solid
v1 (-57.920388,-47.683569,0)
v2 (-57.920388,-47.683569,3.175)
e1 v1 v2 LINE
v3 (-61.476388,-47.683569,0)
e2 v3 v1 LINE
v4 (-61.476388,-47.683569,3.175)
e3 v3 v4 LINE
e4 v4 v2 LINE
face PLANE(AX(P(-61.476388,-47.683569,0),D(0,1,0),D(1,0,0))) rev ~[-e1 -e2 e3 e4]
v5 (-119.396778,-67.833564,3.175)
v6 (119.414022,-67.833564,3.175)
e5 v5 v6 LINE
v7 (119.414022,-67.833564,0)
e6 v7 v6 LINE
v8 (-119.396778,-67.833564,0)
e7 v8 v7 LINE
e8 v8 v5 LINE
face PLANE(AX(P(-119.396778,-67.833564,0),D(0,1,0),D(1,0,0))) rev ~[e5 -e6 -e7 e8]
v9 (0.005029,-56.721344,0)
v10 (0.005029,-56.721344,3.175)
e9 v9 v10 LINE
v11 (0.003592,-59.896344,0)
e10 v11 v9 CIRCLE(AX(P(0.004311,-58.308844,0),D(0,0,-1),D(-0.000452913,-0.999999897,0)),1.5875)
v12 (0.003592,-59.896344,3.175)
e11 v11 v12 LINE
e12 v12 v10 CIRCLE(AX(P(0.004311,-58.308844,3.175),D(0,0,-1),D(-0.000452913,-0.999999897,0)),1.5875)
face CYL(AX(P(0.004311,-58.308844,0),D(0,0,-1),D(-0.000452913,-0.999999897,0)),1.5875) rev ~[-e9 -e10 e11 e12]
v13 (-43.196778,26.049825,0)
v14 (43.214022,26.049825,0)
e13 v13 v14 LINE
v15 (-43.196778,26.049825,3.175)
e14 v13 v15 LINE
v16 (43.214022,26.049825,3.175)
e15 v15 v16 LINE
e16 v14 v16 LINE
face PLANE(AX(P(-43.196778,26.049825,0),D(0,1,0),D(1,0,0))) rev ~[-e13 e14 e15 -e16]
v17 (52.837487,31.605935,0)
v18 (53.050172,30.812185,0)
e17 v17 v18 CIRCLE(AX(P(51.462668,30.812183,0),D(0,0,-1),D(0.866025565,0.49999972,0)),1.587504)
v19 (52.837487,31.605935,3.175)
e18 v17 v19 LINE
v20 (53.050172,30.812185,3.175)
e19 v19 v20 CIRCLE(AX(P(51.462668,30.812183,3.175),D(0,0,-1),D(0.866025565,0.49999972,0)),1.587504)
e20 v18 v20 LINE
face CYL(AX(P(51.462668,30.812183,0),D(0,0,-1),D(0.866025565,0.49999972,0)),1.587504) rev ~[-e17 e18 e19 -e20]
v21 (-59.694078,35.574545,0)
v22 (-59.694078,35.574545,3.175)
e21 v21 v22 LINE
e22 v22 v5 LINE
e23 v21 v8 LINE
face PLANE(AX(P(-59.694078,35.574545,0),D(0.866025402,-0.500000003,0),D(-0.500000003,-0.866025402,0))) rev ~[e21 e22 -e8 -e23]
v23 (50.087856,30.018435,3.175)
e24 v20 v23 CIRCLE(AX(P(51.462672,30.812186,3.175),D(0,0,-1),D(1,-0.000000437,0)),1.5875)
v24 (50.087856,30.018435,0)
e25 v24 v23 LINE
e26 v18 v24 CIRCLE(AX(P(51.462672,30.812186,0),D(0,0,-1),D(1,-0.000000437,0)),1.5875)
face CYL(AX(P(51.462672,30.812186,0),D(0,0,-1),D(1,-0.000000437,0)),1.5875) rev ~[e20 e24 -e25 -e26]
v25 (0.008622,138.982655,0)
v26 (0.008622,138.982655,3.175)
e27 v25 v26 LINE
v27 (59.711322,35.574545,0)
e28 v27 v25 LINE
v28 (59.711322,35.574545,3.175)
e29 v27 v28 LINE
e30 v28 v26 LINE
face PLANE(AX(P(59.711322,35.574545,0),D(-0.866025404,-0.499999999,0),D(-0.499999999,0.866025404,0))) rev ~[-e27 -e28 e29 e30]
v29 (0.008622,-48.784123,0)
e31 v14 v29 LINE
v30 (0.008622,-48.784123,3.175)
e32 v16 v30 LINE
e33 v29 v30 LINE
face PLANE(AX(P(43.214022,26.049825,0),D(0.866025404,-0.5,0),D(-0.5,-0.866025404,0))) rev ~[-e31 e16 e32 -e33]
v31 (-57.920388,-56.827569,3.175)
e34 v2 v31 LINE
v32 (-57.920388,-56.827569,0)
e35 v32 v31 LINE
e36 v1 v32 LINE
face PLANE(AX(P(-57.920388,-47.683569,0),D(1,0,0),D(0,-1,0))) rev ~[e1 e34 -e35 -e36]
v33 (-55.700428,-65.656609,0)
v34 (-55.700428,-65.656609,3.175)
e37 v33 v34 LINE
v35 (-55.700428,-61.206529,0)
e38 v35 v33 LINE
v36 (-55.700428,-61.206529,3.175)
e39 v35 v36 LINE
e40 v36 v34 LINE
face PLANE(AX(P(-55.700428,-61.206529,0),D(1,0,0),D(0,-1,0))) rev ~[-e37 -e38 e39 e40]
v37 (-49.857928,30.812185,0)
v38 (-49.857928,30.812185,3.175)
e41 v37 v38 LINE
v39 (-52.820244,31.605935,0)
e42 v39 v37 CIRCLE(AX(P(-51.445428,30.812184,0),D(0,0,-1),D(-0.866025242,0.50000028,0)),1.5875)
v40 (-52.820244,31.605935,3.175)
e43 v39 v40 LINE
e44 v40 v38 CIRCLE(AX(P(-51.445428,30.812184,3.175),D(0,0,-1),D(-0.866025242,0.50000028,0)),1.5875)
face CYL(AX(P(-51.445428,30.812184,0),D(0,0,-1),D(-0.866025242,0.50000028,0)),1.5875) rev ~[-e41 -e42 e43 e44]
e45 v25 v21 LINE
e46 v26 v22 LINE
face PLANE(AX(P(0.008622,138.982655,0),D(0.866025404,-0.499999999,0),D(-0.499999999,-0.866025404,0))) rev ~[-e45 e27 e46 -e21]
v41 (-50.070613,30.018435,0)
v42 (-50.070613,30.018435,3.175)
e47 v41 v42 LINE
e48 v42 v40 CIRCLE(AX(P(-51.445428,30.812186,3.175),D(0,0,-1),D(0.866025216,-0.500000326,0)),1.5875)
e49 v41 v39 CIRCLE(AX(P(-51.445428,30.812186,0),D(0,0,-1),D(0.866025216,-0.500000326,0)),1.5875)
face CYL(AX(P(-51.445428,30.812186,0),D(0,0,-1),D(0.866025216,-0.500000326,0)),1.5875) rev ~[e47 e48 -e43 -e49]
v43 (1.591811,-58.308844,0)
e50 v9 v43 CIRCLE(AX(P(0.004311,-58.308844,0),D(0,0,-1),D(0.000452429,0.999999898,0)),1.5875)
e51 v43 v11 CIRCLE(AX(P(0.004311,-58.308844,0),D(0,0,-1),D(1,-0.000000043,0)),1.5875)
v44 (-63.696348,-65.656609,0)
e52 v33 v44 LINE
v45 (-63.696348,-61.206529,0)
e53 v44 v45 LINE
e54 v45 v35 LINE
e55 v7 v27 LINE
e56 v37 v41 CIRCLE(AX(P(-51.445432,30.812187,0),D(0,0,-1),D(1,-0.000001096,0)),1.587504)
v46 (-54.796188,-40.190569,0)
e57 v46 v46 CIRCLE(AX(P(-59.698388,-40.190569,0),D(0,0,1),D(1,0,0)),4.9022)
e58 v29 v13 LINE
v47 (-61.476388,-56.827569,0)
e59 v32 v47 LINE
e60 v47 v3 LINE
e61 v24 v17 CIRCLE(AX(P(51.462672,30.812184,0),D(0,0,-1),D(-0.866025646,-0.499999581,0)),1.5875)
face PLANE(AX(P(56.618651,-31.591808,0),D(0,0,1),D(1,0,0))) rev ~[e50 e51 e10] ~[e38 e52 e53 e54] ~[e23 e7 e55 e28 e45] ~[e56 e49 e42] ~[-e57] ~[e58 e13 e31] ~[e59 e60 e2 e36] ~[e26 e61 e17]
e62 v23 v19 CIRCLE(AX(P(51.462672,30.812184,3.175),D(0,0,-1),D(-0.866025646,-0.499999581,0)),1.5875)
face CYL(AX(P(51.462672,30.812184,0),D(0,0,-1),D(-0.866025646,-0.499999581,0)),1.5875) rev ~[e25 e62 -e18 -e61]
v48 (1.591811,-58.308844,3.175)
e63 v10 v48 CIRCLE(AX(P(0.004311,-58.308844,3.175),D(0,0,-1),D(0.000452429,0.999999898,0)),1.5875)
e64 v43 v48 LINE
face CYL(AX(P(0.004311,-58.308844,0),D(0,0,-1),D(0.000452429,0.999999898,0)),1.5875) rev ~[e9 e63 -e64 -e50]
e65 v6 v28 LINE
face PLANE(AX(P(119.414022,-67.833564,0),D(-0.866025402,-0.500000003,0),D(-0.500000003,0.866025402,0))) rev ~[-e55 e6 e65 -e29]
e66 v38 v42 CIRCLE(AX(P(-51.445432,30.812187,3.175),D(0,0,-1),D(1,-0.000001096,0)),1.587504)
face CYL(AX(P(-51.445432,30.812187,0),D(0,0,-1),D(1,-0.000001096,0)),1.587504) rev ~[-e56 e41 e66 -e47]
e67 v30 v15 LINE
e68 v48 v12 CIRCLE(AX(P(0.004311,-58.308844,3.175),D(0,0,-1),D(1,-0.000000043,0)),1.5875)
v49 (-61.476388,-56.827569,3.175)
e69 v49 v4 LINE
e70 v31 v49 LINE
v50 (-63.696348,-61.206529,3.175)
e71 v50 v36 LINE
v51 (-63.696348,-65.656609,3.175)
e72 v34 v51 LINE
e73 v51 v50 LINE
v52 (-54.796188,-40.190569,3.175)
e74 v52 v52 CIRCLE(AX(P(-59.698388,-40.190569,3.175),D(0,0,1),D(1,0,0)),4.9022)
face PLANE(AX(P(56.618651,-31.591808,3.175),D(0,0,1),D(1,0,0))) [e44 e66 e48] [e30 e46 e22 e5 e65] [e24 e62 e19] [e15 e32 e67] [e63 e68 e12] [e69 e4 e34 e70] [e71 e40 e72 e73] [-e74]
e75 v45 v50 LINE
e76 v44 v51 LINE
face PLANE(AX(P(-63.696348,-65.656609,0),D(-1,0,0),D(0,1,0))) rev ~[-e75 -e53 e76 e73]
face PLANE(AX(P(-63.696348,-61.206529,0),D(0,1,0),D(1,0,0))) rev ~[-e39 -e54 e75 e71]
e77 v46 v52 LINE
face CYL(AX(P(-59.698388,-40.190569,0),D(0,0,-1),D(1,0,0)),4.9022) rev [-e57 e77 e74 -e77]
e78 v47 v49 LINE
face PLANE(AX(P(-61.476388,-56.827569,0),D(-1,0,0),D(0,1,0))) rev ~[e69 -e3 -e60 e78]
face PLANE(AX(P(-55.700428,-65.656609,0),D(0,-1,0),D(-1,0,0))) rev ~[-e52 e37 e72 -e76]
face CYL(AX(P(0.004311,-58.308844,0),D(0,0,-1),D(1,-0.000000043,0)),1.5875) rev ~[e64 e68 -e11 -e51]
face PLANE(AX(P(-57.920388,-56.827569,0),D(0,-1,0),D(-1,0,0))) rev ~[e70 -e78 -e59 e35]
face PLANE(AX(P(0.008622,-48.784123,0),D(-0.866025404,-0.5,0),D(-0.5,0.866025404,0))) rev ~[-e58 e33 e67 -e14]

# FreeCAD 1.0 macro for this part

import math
import FreeCAD as App
import Part
import Sketcher
from FreeCAD import Vector
Q = App.Units.Quantity

doc = App.newDocument("Part")
body = doc.addObject("PartDesign::Body", "Body")

# Sketch on XY plane
sketch1 = body.newObject("Sketcher::SketchObject", "Sketch")
sketch1.AttachmentSupport = (doc.getObject("XY_Plane"), [""])
sketch1.MapMode = "FlatFace"
sketch1.addGeometry([
    Part.LineSegment(Vector(119.414022, -67.833564, 0), Vector(59.711322, 35.574545, 0)),  # 0
    Part.LineSegment(Vector(59.711322, 35.574545, 0), Vector(0.008622, 138.982655, 0)),  # 1
    Part.LineSegment(Vector(0.008622, 138.982655, 0), Vector(-59.694078, 35.574545, 0)),  # 2
    Part.LineSegment(Vector(-59.694078, 35.574545, 0), Vector(-119.396778, -67.833564, 0)),  # 3
    Part.LineSegment(Vector(-119.396778, -67.833564, 0), Vector(119.414022, -67.833564, 0)),  # 4
    Part.LineSegment(Vector(-55.700428, -65.656609, 0), Vector(-63.696348, -65.656609, 0)),  # 5
    Part.LineSegment(Vector(-63.696348, -65.656609, 0), Vector(-63.696348, -61.206529, 0)),  # 6
    Part.LineSegment(Vector(-63.696348, -61.206529, 0), Vector(-55.700428, -61.206529, 0)),  # 7
    Part.LineSegment(Vector(-55.700428, -61.206529, 0), Vector(-55.700428, -65.656609, 0)),  # 8
    Part.LineSegment(Vector(-57.920388, -56.827569, 0), Vector(-61.476388, -56.827569, 0)),  # 9
    Part.LineSegment(Vector(-61.476388, -56.827569, 0), Vector(-61.476388, -47.683569, 0)),  # 10
    Part.LineSegment(Vector(-61.476388, -47.683569, 0), Vector(-57.920388, -47.683569, 0)),  # 11
    Part.LineSegment(Vector(-57.920388, -47.683569, 0), Vector(-57.920388, -56.827569, 0)),  # 12
    Part.Circle(Vector(-59.698388, -40.190569, 0), Vector(0, 0, 1), 4.9022),  # 13
    Part.ArcOfCircle(Part.Circle(Vector(0.004311, -58.308844, 0), Vector(0, 0, 1), 1.5875), math.radians(0.000002), math.radians(89.974078)),  # 14
    Part.ArcOfCircle(Part.Circle(Vector(0.004311, -58.308844, 0), Vector(0, 0, 1), 1.5875), math.radians(-90.025942), math.radians(-0.000002)),  # 15
    Part.ArcOfCircle(Part.Circle(Vector(0.004311, -58.308844, 0), Vector(0, 0, 1), 1.5875), math.radians(89.974086), math.radians(269.97405)),  # 16
    Part.ArcOfCircle(Part.Circle(Vector(-51.445428, 30.812184, 0), Vector(0, 0, 1), 1.5875), math.radians(0.000025), math.radians(149.999981)),  # 17
    Part.ArcOfCircle(Part.Circle(Vector(-51.445432, 30.812187, 0), Vector(0, 0, 1), 1.587504), math.radians(-29.999981), math.radians(-0.000063)),  # 18
    Part.ArcOfCircle(Part.Circle(Vector(-51.445428, 30.812186, 0), Vector(0, 0, 1), 1.5875), math.radians(150.000028), math.radians(329.999978)),  # 19
    Part.LineSegment(Vector(43.214022, 26.049825, 0), Vector(0.008622, -48.784123, 0)),  # 20
    Part.LineSegment(Vector(0.008622, -48.784123, 0), Vector(-43.196778, 26.049825, 0)),  # 21
    Part.LineSegment(Vector(-43.196778, 26.049825, 0), Vector(43.214022, 26.049825, 0)),  # 22
    Part.ArcOfCircle(Part.Circle(Vector(51.462668, 30.812183, 0), Vector(0, 0, 1), 1.587504), math.radians(0.000063), math.radians(29.999981)),  # 23
    Part.ArcOfCircle(Part.Circle(Vector(51.462672, 30.812186, 0), Vector(0, 0, 1), 1.5875), math.radians(-149.999981), math.radians(-0.000025)),  # 24
    Part.ArcOfCircle(Part.Circle(Vector(51.462672, 30.812184, 0), Vector(0, 0, 1), 1.5875), math.radians(30.000022), math.radians(209.999972)),  # 25
], False)
sketch1.addConstraint([
    Sketcher.Constraint("Coincident", 0, 2, 1, 1),
    Sketcher.Constraint("Coincident", 1, 2, 2, 1),
    Sketcher.Constraint("Coincident", 2, 2, 3, 1),
    Sketcher.Constraint("Coincident", 3, 2, 4, 1),
    Sketcher.Constraint("Coincident", 4, 2, 0, 1),
    Sketcher.Constraint("Coincident", 5, 2, 6, 1),
    Sketcher.Constraint("Coincident", 6, 2, 7, 1),
    Sketcher.Constraint("Coincident", 7, 2, 8, 1),
    Sketcher.Constraint("Coincident", 8, 2, 5, 1),
    Sketcher.Constraint("Coincident", 9, 2, 10, 1),
    Sketcher.Constraint("Coincident", 10, 2, 11, 1),
    Sketcher.Constraint("Coincident", 11, 2, 12, 1),
    Sketcher.Constraint("Coincident", 12, 2, 9, 1),
    Sketcher.Constraint("Tangent", 14, 1, 15, 2),
    Sketcher.Constraint("Tangent", 15, 1, 16, 2),
    Sketcher.Constraint("Tangent", 16, 1, 14, 2),
    Sketcher.Constraint("Tangent", 17, 1, 18, 2),
    Sketcher.Constraint("Tangent", 18, 1, 19, 2),
    Sketcher.Constraint("Tangent", 19, 1, 17, 2),
    Sketcher.Constraint("Coincident", 20, 2, 21, 1),
    Sketcher.Constraint("Coincident", 21, 2, 22, 1),
    Sketcher.Constraint("Coincident", 22, 2, 20, 1),
    Sketcher.Constraint("Tangent", 23, 1, 24, 2),
    Sketcher.Constraint("Tangent", 24, 1, 25, 2),
    Sketcher.Constraint("Tangent", 25, 1, 23, 2),
    Sketcher.Constraint("Horizontal", 4),
    Sketcher.Constraint("Horizontal", 5),
    Sketcher.Constraint("Vertical", 6),
    Sketcher.Constraint("Horizontal", 7),
    Sketcher.Constraint("Vertical", 8),
    Sketcher.Constraint("Horizontal", 9),
    Sketcher.Constraint("Vertical", 10),
    Sketcher.Constraint("Horizontal", 11),
    Sketcher.Constraint("Vertical", 12),
    Sketcher.Constraint("Horizontal", 22),
    Sketcher.Constraint("Equal", 16, 17),
    Sketcher.Constraint("Equal", 18, 23),
    Sketcher.Constraint("Parallel", 0, 1),
    Sketcher.Constraint("Parallel", 2, 3),
    Sketcher.Constraint("Parallel", 3, 20),
    Sketcher.Constraint("Parallel", 1, 21),
    Sketcher.Constraint("Horizontal", 17, 3, 23, 3),
    Sketcher.Constraint("Horizontal", 0, 2, 2, 2),
    Sketcher.Constraint("Horizontal", 16, 3, 14, 1),
    Sketcher.Constraint("Horizontal", 25, 3, 17, 1),
    Sketcher.Constraint("Horizontal", 17, 1, 23, 1),
    Sketcher.Constraint("Horizontal", 18, 1, 24, 1),
    Sketcher.Constraint("Horizontal", 19, 1, 25, 1),
    Sketcher.Constraint("Vertical", 1, 2, 20, 2),
    Sketcher.Constraint("Equal", 0, 1),
    Sketcher.Constraint("Equal", 1, 2),
    Sketcher.Constraint("Diameter", 13, Q("0.386 in")),
    Sketcher.Constraint("Angle", 0, Q("120 deg")),
    Sketcher.Constraint("Radius", 14, Q("0.0625 in")),
    Sketcher.Constraint("DistanceX", 9, 2, 9, 1, Q("0.14 in")),
    Sketcher.Constraint("DistanceY", 10, 1, 10, 2, Q("0.36 in")),
    Sketcher.Constraint("DistanceX", 4, 1, 4, 2, Q("9.402 in")),
    Sketcher.Constraint("DistanceX", 22, 1, 22, 2, Q("3.402 in")),
    Sketcher.Constraint("DistanceX", 9, 2, 13, 3, Q("0.07 in")),
    Sketcher.Constraint("DistanceX", 5, 2, 5, 1, Q("0.3148 in")),
    Sketcher.Constraint("DistanceY", 6, 1, 6, 2, Q("0.1752 in")),
    Sketcher.Constraint("DistanceY", 9, 2, 13, 3, Q("0.655 in")),
    Sketcher.Constraint("DistanceY", 18, 1, 17, 1, Q("0.03125 in")),
    Sketcher.Constraint("DistanceY", 18, 3, 19, 1, Q("0.0312499 in")),
    Sketcher.Constraint("DistanceX", 13, 3, 14, 3, Q("2.3505 in")),
    Sketcher.Constraint("DistanceX", 19, 3, 23, 3, Q("4.0514998 in")),
    Sketcher.Constraint("DistanceX", 5, 2, 13, 3, Q("0.1574 in")),
    Sketcher.Constraint("DistanceY", 5, 2, 13, 3, Q("1.0026 in")),
    Sketcher.Constraint("DistanceY", 13, 3, -1, 1, Q("40.190569 mm")),
    Sketcher.Constraint("DistanceX", -1, 1, 14, 3, Q("0.004311 mm")),
    Sketcher.Constraint("DistanceX", 17, 3, -1, 1, Q("51.445428 mm")),
    Sketcher.Constraint("DistanceX", -1, 1, 16, 1, Q("0.005029 mm")),
    Sketcher.Constraint("DistanceX", 21, 2, -1, 1, Q("43.196778 mm")),
    Sketcher.Constraint("DistanceY", 15, 3, 17, 3, Q("89.121028 mm")),
    Sketcher.Constraint("DistanceY", 24, 3, 0, 2, Q("4.762359 mm")),
    Sketcher.Constraint("DistanceX", 15, 1, 14, 3, Q("0.000719 mm")),
    Sketcher.Constraint("DistanceY", 16, 1, 20, 2, Q("7.937221 mm")),
    Sketcher.Constraint("DistanceY", 14, 3, -1, 1, Q("58.308844 mm")),
])
pad1 = body.newObject("PartDesign::Pad", "Pad")
pad1.Profile = sketch1
pad1.Length = Q("0.125 in")

doc.recompute()
